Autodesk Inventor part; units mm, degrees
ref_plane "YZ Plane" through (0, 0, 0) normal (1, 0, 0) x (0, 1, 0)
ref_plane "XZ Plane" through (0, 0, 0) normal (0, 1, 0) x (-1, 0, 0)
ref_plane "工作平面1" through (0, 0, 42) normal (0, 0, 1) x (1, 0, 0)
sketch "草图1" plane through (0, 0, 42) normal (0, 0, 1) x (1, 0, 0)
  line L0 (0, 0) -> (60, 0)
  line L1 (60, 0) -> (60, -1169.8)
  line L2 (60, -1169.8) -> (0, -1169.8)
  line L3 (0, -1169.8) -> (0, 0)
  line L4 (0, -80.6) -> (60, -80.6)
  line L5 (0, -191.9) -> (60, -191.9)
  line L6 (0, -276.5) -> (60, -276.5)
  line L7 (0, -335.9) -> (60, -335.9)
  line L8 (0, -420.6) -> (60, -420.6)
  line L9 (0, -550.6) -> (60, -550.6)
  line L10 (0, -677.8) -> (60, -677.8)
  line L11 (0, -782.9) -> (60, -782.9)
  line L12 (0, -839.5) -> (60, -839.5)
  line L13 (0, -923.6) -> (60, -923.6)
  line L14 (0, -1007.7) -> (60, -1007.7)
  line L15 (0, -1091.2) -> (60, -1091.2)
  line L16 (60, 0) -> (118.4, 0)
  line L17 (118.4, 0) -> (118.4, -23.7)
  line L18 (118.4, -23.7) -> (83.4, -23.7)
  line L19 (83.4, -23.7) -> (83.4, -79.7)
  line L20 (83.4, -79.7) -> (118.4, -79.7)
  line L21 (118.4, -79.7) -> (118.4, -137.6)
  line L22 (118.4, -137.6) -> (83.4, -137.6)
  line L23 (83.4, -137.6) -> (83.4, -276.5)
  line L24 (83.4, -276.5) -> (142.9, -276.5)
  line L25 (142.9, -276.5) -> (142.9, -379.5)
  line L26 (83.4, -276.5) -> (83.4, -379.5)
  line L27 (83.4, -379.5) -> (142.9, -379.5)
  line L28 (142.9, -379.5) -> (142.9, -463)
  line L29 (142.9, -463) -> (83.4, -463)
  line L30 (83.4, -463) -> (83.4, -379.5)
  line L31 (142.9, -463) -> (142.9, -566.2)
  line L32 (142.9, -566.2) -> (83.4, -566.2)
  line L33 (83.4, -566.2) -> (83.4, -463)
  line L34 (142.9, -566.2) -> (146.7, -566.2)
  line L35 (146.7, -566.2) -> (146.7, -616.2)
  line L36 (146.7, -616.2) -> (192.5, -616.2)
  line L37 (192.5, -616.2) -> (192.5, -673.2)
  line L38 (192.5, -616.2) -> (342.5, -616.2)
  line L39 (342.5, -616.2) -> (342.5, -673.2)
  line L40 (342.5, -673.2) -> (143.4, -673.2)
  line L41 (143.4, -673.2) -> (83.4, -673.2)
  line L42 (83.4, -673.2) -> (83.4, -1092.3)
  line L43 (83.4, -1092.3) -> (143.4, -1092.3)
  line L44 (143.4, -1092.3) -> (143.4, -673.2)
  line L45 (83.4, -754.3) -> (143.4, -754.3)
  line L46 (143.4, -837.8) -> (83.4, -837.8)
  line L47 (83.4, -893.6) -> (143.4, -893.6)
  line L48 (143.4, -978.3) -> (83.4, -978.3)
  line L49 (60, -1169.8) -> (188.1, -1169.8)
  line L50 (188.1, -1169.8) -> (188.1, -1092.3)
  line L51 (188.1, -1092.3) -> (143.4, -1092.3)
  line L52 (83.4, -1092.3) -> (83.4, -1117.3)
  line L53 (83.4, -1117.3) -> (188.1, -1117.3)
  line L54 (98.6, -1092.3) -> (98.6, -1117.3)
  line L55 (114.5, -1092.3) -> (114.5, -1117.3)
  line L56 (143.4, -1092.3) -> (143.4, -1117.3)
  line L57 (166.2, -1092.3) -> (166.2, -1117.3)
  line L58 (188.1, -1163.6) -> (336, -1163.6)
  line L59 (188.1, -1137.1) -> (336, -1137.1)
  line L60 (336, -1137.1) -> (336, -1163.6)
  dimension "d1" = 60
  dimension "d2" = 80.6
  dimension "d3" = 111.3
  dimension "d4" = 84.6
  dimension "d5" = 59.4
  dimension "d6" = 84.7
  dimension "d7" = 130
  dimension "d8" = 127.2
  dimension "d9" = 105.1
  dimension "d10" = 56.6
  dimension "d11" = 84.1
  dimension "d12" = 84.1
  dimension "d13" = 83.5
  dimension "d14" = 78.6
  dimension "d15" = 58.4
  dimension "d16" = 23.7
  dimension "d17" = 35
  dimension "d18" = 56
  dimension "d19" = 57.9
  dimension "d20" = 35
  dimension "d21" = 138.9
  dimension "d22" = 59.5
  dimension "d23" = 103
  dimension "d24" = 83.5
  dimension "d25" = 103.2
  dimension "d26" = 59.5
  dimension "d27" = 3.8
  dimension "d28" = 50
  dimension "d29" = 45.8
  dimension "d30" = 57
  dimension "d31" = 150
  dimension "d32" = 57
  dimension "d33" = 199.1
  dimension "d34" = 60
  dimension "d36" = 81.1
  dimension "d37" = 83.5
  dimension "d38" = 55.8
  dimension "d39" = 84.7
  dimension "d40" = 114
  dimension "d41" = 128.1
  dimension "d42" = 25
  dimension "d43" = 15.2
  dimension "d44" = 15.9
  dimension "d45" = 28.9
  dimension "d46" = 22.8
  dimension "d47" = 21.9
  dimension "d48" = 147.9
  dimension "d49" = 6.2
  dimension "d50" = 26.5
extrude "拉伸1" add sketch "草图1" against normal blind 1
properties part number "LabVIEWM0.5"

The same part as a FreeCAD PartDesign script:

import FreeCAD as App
import Part
import Sketcher

V = App.Vector
Q = App.Units.Quantity

doc = App.newDocument("Part")
body = doc.addObject("PartDesign::Body", "Body")

# Sketch on XY plane
sketch1 = body.newObject("Sketcher::SketchObject", "Sketch")
sketch1.AttachmentSupport = (doc.getObject("XY_Plane"), [""])
sketch1.MapMode = "FlatFace"
sketch1.AttachmentOffset = App.Placement(V(0, 0, 42), App.Rotation())
sketch1.addGeometry(Part.LineSegment(V(0, 0, 0), V(0, -1169.8, 0)), False)
sketch1.addGeometry(Part.LineSegment(V(0, -1169.8, 0), V(188.1, -1169.8, 0)), False)
sketch1.addGeometry(Part.LineSegment(V(188.1, -1169.8, 0), V(188.1, -1163.6, 0)), False)
sketch1.addGeometry(Part.LineSegment(V(188.1, -1163.6, 0), V(336, -1163.6, 0)), False)
sketch1.addGeometry(Part.LineSegment(V(336, -1163.6, 0), V(336, -1137.1, 0)), False)
sketch1.addGeometry(Part.LineSegment(V(336, -1137.1, 0), V(188.1, -1137.1, 0)), False)
sketch1.addGeometry(Part.LineSegment(V(188.1, -1137.1, 0), V(188.1, -1092.3, 0)), False)
sketch1.addGeometry(Part.LineSegment(V(188.1, -1092.3, 0), V(143.4, -1092.3, 0)), False)
sketch1.addGeometry(Part.LineSegment(V(143.4, -1092.3, 0), V(143.4, -673.2, 0)), False)
sketch1.addGeometry(Part.LineSegment(V(143.4, -673.2, 0), V(342.5, -673.2, 0)), False)
sketch1.addGeometry(Part.LineSegment(V(342.5, -673.2, 0), V(342.5, -616.2, 0)), False)
sketch1.addGeometry(Part.LineSegment(V(342.5, -616.2, 0), V(146.7, -616.2, 0)), False)
sketch1.addGeometry(Part.LineSegment(V(146.7, -616.2, 0), V(146.7, -566.2, 0)), False)
sketch1.addGeometry(Part.LineSegment(V(146.7, -566.2, 0), V(142.9, -566.2, 0)), False)
sketch1.addGeometry(Part.LineSegment(V(142.9, -566.2, 0), V(142.9, -276.5, 0)), False)
sketch1.addGeometry(Part.LineSegment(V(142.9, -276.5, 0), V(83.4, -276.5, 0)), False)
sketch1.addGeometry(Part.LineSegment(V(83.4, -276.5, 0), V(83.4, -137.6, 0)), False)
sketch1.addGeometry(Part.LineSegment(V(83.4, -137.6, 0), V(118.4, -137.6, 0)), False)
sketch1.addGeometry(Part.LineSegment(V(118.4, -137.6, 0), V(118.4, -79.7, 0)), False)
sketch1.addGeometry(Part.LineSegment(V(118.4, -79.7, 0), V(83.4, -79.7, 0)), False)
sketch1.addGeometry(Part.LineSegment(V(83.4, -79.7, 0), V(83.4, -23.7, 0)), False)
sketch1.addGeometry(Part.LineSegment(V(83.4, -23.7, 0), V(118.4, -23.7, 0)), False)
sketch1.addGeometry(Part.LineSegment(V(118.4, -23.7, 0), V(118.4, 0, 0)), False)
sketch1.addGeometry(Part.LineSegment(V(118.4, 0, 0), V(0, 0, 0)), False)
sketch1.addConstraint(Sketcher.Constraint("Coincident", 0, 2, 1, 1))
sketch1.addConstraint(Sketcher.Constraint("Coincident", 1, 2, 2, 1))
sketch1.addConstraint(Sketcher.Constraint("Coincident", 2, 2, 3, 1))
sketch1.addConstraint(Sketcher.Constraint("Coincident", 3, 2, 4, 1))
sketch1.addConstraint(Sketcher.Constraint("Coincident", 4, 2, 5, 1))
sketch1.addConstraint(Sketcher.Constraint("Coincident", 5, 2, 6, 1))
sketch1.addConstraint(Sketcher.Constraint("Coincident", 6, 2, 7, 1))
sketch1.addConstraint(Sketcher.Constraint("Coincident", 7, 2, 8, 1))
sketch1.addConstraint(Sketcher.Constraint("Coincident", 8, 2, 9, 1))
sketch1.addConstraint(Sketcher.Constraint("Coincident", 9, 2, 10, 1))
sketch1.addConstraint(Sketcher.Constraint("Coincident", 10, 2, 11, 1))
sketch1.addConstraint(Sketcher.Constraint("Coincident", 11, 2, 12, 1))
sketch1.addConstraint(Sketcher.Constraint("Coincident", 12, 2, 13, 1))
sketch1.addConstraint(Sketcher.Constraint("Coincident", 13, 2, 14, 1))
sketch1.addConstraint(Sketcher.Constraint("Coincident", 14, 2, 15, 1))
sketch1.addConstraint(Sketcher.Constraint("Coincident", 15, 2, 16, 1))
sketch1.addConstraint(Sketcher.Constraint("Coincident", 16, 2, 17, 1))
sketch1.addConstraint(Sketcher.Constraint("Coincident", 17, 2, 18, 1))
sketch1.addConstraint(Sketcher.Constraint("Coincident", 18, 2, 19, 1))
sketch1.addConstraint(Sketcher.Constraint("Coincident", 19, 2, 20, 1))
sketch1.addConstraint(Sketcher.Constraint("Coincident", 20, 2, 21, 1))
sketch1.addConstraint(Sketcher.Constraint("Coincident", 21, 2, 22, 1))
sketch1.addConstraint(Sketcher.Constraint("Coincident", 22, 2, 23, 1))
sketch1.addConstraint(Sketcher.Constraint("Coincident", 23, 2, 0, 1))
sketch1.addConstraint(Sketcher.Constraint("Vertical", 0))
sketch1.addConstraint(Sketcher.Constraint("Horizontal", 1))
sketch1.addConstraint(Sketcher.Constraint("Vertical", 2))
sketch1.addConstraint(Sketcher.Constraint("Horizontal", 3))
sketch1.addConstraint(Sketcher.Constraint("Vertical", 4))
sketch1.addConstraint(Sketcher.Constraint("Horizontal", 5))
sketch1.addConstraint(Sketcher.Constraint("Vertical", 6))
sketch1.addConstraint(Sketcher.Constraint("Horizontal", 7))
sketch1.addConstraint(Sketcher.Constraint("Vertical", 8))
sketch1.addConstraint(Sketcher.Constraint("Horizontal", 9))
sketch1.addConstraint(Sketcher.Constraint("Vertical", 10))
sketch1.addConstraint(Sketcher.Constraint("Horizontal", 11))
sketch1.addConstraint(Sketcher.Constraint("Vertical", 12))
sketch1.addConstraint(Sketcher.Constraint("Horizontal", 13))
sketch1.addConstraint(Sketcher.Constraint("Vertical", 14))
sketch1.addConstraint(Sketcher.Constraint("Horizontal", 15))
sketch1.addConstraint(Sketcher.Constraint("Vertical", 16))
sketch1.addConstraint(Sketcher.Constraint("Horizontal", 17))
sketch1.addConstraint(Sketcher.Constraint("Vertical", 18))
sketch1.addConstraint(Sketcher.Constraint("Horizontal", 19))
sketch1.addConstraint(Sketcher.Constraint("Vertical", 20))
sketch1.addConstraint(Sketcher.Constraint("Horizontal", 21))
sketch1.addConstraint(Sketcher.Constraint("Vertical", 22))
sketch1.addConstraint(Sketcher.Constraint("Horizontal", 23))
sketch1.addConstraint(Sketcher.Constraint("Coincident", 23, 2, -1, 1))
sketch1.addConstraint(Sketcher.Constraint("Vertical", 2, 2, 5, 2))
sketch1.addConstraint(Sketcher.Constraint("Vertical", 16, 2, 19, 2))
sketch1.addConstraint(Sketcher.Constraint("Vertical", 18, 2, 21, 2))
sketch1.addConstraint(Sketcher.Constraint("DistanceX", 17, 1, 17, 2, Q("35 mm")))
sketch1.addConstraint(Sketcher.Constraint("DistanceY", 10, 1, 10, 2, Q("57 mm")))
sketch1.addConstraint(Sketcher.Constraint("DistanceY", 12, 1, 12, 2, Q("50 mm")))
sketch1.addConstraint(Sketcher.Constraint("DistanceY", 20, 1, 20, 2, Q("56 mm")))
sketch1.addConstraint(Sketcher.Constraint("DistanceX", 3, 1, 3, 2, Q("147.9 mm")))
sketch1.addConstraint(Sketcher.Constraint("DistanceX", 9, 1, 9, 2, Q("199.1 mm")))
sketch1.addConstraint(Sketcher.Constraint("DistanceX", 13, 2, 13, 1, Q("3.8 mm")))
sketch1.addConstraint(Sketcher.Constraint("DistanceX", 15, 2, 15, 1, Q("59.5 mm")))
sketch1.addConstraint(Sketcher.Constraint("DistanceY", 2, 1, 2, 2, Q("6.2 mm")))
sketch1.addConstraint(Sketcher.Constraint("DistanceY", 4, 1, 4, 2, Q("26.5 mm")))
sketch1.addConstraint(Sketcher.Constraint("DistanceY", 16, 1, 16, 2, Q("138.9 mm")))
sketch1.addConstraint(Sketcher.Constraint("DistanceY", 18, 1, 18, 2, Q("57.9 mm")))
sketch1.addConstraint(Sketcher.Constraint("DistanceY", 22, 1, 22, 2, Q("23.7 mm")))
sketch1.addConstraint(Sketcher.Constraint("DistanceX", 15, 2, 8, 2, Q("60 mm")))
sketch1.addConstraint(Sketcher.Constraint("DistanceX", 1, 1, 1, 2, Q("188.1 mm")))
sketch1.addConstraint(Sketcher.Constraint("DistanceX", 7, 2, 7, 1, Q("44.7 mm")))
sketch1.addConstraint(Sketcher.Constraint("DistanceY", 0, 2, 0, 1, Q("1169.8 mm")))
sketch1.addConstraint(Sketcher.Constraint("DistanceY", 6, 1, 6, 2, Q("44.8 mm")))
sketch1.addConstraint(Sketcher.Constraint("DistanceY", 8, 1, 8, 2, Q("419.1 mm")))
pad1 = body.newObject("PartDesign::Pad", "Pad")
pad1.Profile = sketch1
pad1.Length = 1
pad1.Reversed = True

doc.recompute()
